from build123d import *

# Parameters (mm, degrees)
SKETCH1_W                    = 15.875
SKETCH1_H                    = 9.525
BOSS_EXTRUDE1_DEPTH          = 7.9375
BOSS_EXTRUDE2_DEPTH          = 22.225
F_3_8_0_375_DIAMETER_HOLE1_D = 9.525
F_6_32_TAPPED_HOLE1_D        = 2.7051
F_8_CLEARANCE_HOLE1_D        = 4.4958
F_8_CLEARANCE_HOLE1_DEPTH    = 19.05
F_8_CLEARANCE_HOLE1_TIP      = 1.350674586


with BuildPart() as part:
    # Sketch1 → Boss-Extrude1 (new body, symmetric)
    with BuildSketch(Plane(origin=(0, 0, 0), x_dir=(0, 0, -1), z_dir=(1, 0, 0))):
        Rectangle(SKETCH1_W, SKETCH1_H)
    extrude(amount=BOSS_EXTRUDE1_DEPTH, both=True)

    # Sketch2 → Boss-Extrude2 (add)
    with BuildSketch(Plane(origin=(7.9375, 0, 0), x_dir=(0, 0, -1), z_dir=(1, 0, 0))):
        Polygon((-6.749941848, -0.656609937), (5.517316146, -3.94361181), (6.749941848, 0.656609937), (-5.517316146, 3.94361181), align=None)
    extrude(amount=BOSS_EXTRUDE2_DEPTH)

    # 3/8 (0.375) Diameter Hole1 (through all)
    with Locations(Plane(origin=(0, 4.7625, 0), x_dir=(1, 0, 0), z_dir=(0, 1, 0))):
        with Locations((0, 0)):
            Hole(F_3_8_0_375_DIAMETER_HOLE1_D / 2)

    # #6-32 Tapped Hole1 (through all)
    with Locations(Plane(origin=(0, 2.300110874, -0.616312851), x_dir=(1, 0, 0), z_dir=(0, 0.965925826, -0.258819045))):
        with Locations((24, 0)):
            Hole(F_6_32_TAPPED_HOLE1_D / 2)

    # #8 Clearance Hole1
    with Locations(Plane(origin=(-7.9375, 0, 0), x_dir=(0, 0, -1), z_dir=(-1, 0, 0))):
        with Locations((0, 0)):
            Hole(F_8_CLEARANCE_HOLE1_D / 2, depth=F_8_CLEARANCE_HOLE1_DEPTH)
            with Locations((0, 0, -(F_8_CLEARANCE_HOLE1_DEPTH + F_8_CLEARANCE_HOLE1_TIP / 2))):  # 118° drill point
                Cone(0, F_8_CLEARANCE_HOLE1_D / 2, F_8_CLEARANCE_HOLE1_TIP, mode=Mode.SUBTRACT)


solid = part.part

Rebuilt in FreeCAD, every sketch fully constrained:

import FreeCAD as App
import Part
import Sketcher
Q = App.Units.Quantity

doc = App.newDocument("Part")
params = doc.addObject("Spreadsheet::Sheet", "Params")
for row, (alias, value) in enumerate([
    ("sketch1_width", "0.375 in"),
    ("sketch1_height", "0.625 in"),
    ("pad1_length", "0.625 in"),
    ("sketch2_length", "0.5 in"),
    ("sketch2_length2", "0.1875 in"),
    ("pad2_length", "0.875 in"),
    ("sketch3_diameter", "0.375 in"),
    ("hole_diameter", "0.375 in"),
    ("hole2_diameter", "0.1065 in"),
    ("sketch5_diameter", "0.177 in"),
    ("hole3_diameter", "0.177 in"),
    ("hole3_depth", "0.75 in"),
], start=1):
    params.set(f"A{row}", alias)
    params.set(f"B{row}", "=" + value)
    params.setAlias(f"B{row}", alias)

body = doc.addObject("PartDesign::Body", "Body")

sketch1 = doc.addObject("Sketcher::SketchObject", "Sketch")
body.addObject(sketch1)
sketch1.AttachmentSupport = (doc.YZ_Plane, [""])
sketch1.MapMode = "FlatFace"
sketch1.addGeometry([
    Part.LineSegment(App.Vector(4.7625, 7.9375, 0), App.Vector(-4.7625, 7.9375, 0)),
    Part.LineSegment(App.Vector(-4.7625, 7.9375, 0), App.Vector(-4.7625, -7.9375, 0)),
    Part.LineSegment(App.Vector(-4.7625, -7.9375, 0), App.Vector(4.7625, -7.9375, 0)),
    Part.LineSegment(App.Vector(4.7625, -7.9375, 0), App.Vector(4.7625, 7.9375, 0)),
], False)
sketch1.addConstraint([
    Sketcher.Constraint("Coincident", 0, 2, 1, 1),
    Sketcher.Constraint("Coincident", 1, 2, 2, 1),
    Sketcher.Constraint("Coincident", 2, 2, 3, 1),
    Sketcher.Constraint("Coincident", 3, 2, 0, 1),
    Sketcher.Constraint("Horizontal", 0),
    Sketcher.Constraint("Vertical", 1),
    Sketcher.Constraint("Horizontal", 2),
    Sketcher.Constraint("Vertical", 3),
    Sketcher.Constraint("Symmetric", 0, 2, 2, 2, -1, 1),
    Sketcher.Constraint("DistanceX", 0, 2, 0, 1, Q("0.375 in")),
    Sketcher.Constraint("DistanceY", 1, 2, 1, 1, Q("0.625 in")),
])
sketch1.setExpression("Constraints[9]", "Params.sketch1_width")
sketch1.setExpression("Constraints[10]", "Params.sketch1_height")
pad1 = doc.addObject("PartDesign::Pad", "Pad")
body.addObject(pad1)
pad1.Profile = sketch1
pad1.setExpression("Length", "Params.pad1_length")
pad1.Midplane = True

sketch2 = doc.addObject("Sketcher::SketchObject", "Sketch001")
body.addObject(sketch2)
sketch2.AttachmentSupport = (doc.YZ_Plane, [""])
sketch2.MapMode = "FlatFace"
sketch2.AttachmentOffset = App.Placement(App.Vector(0, 0, 0.3125 * 25.4), App.Rotation())
sketch2.addGeometry([
    Part.LineSegment(App.Vector(-0.65661, 6.749942, 0), App.Vector(-3.943612, -5.517316, 0)),
    Part.LineSegment(App.Vector(-3.943612, -5.517316, 0), App.Vector(0.65661, -6.749942, 0)),
    Part.LineSegment(App.Vector(0.65661, -6.749942, 0), App.Vector(3.943612, 5.517316, 0)),
    Part.LineSegment(App.Vector(3.943612, 5.517316, 0), App.Vector(-0.65661, 6.749942, 0)),
], False)
sketch2.addConstraint([
    Sketcher.Constraint("Coincident", 0, 2, 1, 1),
    Sketcher.Constraint("Coincident", 1, 2, 2, 1),
    Sketcher.Constraint("Coincident", 2, 2, 3, 1),
    Sketcher.Constraint("Coincident", 3, 2, 0, 1),
    Sketcher.Constraint("Symmetric", 0, 2, 2, 2, -1, 1),
    Sketcher.Constraint("Symmetric", 1, 2, 3, 2, -1, 1),
    Sketcher.Constraint("Perpendicular", 0, 1),
    Sketcher.Constraint("Angle", 0, Q("-105 deg")),
    Sketcher.Constraint("Distance", 0, Q("0.5 in")),
    Sketcher.Constraint("Distance", 1, Q("0.1875 in")),
])
sketch2.setExpression("Constraints[8]", "Params.sketch2_length")
sketch2.setExpression("Constraints[9]", "Params.sketch2_length2")
pad2 = doc.addObject("PartDesign::Pad", "Pad001")
body.addObject(pad2)
pad2.Profile = sketch2
pad2.setExpression("Length", "Params.pad2_length")

sketch3 = doc.addObject("Sketcher::SketchObject", "Sketch002")
body.addObject(sketch3)
sketch3.AttachmentSupport = (doc.XZ_Plane, [""])
sketch3.MapMode = "FlatFace"
sketch3.AttachmentOffset = App.Placement(App.Vector(0, 0, -0.1875 * 25.4), App.Rotation())
sketch3.addGeometry(Part.Circle(App.Vector(0, 0, 0), App.Vector(0, 0, 1), 4.7625), False)
sketch3.addConstraint([
    Sketcher.Constraint("Coincident", 0, 3, -1, 1),
    Sketcher.Constraint("Diameter", 0, Q("0.375 in")),
])
sketch3.setExpression("Constraints[1]", "Params.sketch3_diameter")
doc.recompute()
hole = doc.addObject("PartDesign::Hole", "Hole")
body.addObject(hole)
hole.Profile = sketch3
hole.ThreadType = "None"
hole.setExpression("Diameter", "Params.hole_diameter")
hole.DepthType = "ThroughAll"
hole.Reversed = True

sketch4 = doc.addObject("Sketcher::SketchObject", "Sketch003")
body.addObject(sketch4)
sketch4.Placement = App.Placement(App.Vector(0, 2.300111, -0.616313), App.Rotation(App.Vector(1, 0, 0), App.Vector(0, -0.258819045, -0.965925826), App.Vector(0, 0.965925826, -0.258819045), "ZXY"))
sketch4.addGeometry(Part.Circle(App.Vector(24, 0, 0), App.Vector(0, 0, 1), 1.35255), False)
sketch4.addConstraint([
    Sketcher.Constraint("PointOnObject", 0, 3, -1),
    Sketcher.Constraint("Diameter", 0, Q("0.1065 in")),
    Sketcher.Constraint("DistanceX", -1, 1, 0, 3, 24.0),
])
doc.recompute()
hole2 = doc.addObject("PartDesign::Hole", "Hole001")
body.addObject(hole2)
hole2.Profile = sketch4
hole2.ThreadType = "None"
hole2.setExpression("Diameter", "Params.hole2_diameter")
hole2.DepthType = "ThroughAll"

sketch5 = doc.addObject("Sketcher::SketchObject", "Sketch004")
body.addObject(sketch5)
sketch5.AttachmentSupport = (doc.YZ_Plane, [""])
sketch5.MapMode = "FlatFace"
sketch5.AttachmentOffset = App.Placement(App.Vector(0, 0, -0.3125 * 25.4), App.Rotation())
sketch5.addGeometry(Part.Circle(App.Vector(0, 0, 0), App.Vector(0, 0, 1), 2.2479), False)
sketch5.addConstraint([
    Sketcher.Constraint("Coincident", 0, 3, -1, 1),
    Sketcher.Constraint("Diameter", 0, Q("0.177 in")),
])
sketch5.setExpression("Constraints[1]", "Params.sketch5_diameter")
doc.recompute()
hole3 = doc.addObject("PartDesign::Hole", "Hole002")
body.addObject(hole3)
hole3.Profile = sketch5
hole3.ThreadType = "None"
hole3.setExpression("Diameter", "Params.hole3_diameter")
hole3.DepthType = "Dimension"
hole3.setExpression("Depth", "Params.hole3_depth")
hole3.DrillPoint = "Angled"
hole3.DrillPointAngle = 118
hole3.Reversed = True

doc.recompute()
